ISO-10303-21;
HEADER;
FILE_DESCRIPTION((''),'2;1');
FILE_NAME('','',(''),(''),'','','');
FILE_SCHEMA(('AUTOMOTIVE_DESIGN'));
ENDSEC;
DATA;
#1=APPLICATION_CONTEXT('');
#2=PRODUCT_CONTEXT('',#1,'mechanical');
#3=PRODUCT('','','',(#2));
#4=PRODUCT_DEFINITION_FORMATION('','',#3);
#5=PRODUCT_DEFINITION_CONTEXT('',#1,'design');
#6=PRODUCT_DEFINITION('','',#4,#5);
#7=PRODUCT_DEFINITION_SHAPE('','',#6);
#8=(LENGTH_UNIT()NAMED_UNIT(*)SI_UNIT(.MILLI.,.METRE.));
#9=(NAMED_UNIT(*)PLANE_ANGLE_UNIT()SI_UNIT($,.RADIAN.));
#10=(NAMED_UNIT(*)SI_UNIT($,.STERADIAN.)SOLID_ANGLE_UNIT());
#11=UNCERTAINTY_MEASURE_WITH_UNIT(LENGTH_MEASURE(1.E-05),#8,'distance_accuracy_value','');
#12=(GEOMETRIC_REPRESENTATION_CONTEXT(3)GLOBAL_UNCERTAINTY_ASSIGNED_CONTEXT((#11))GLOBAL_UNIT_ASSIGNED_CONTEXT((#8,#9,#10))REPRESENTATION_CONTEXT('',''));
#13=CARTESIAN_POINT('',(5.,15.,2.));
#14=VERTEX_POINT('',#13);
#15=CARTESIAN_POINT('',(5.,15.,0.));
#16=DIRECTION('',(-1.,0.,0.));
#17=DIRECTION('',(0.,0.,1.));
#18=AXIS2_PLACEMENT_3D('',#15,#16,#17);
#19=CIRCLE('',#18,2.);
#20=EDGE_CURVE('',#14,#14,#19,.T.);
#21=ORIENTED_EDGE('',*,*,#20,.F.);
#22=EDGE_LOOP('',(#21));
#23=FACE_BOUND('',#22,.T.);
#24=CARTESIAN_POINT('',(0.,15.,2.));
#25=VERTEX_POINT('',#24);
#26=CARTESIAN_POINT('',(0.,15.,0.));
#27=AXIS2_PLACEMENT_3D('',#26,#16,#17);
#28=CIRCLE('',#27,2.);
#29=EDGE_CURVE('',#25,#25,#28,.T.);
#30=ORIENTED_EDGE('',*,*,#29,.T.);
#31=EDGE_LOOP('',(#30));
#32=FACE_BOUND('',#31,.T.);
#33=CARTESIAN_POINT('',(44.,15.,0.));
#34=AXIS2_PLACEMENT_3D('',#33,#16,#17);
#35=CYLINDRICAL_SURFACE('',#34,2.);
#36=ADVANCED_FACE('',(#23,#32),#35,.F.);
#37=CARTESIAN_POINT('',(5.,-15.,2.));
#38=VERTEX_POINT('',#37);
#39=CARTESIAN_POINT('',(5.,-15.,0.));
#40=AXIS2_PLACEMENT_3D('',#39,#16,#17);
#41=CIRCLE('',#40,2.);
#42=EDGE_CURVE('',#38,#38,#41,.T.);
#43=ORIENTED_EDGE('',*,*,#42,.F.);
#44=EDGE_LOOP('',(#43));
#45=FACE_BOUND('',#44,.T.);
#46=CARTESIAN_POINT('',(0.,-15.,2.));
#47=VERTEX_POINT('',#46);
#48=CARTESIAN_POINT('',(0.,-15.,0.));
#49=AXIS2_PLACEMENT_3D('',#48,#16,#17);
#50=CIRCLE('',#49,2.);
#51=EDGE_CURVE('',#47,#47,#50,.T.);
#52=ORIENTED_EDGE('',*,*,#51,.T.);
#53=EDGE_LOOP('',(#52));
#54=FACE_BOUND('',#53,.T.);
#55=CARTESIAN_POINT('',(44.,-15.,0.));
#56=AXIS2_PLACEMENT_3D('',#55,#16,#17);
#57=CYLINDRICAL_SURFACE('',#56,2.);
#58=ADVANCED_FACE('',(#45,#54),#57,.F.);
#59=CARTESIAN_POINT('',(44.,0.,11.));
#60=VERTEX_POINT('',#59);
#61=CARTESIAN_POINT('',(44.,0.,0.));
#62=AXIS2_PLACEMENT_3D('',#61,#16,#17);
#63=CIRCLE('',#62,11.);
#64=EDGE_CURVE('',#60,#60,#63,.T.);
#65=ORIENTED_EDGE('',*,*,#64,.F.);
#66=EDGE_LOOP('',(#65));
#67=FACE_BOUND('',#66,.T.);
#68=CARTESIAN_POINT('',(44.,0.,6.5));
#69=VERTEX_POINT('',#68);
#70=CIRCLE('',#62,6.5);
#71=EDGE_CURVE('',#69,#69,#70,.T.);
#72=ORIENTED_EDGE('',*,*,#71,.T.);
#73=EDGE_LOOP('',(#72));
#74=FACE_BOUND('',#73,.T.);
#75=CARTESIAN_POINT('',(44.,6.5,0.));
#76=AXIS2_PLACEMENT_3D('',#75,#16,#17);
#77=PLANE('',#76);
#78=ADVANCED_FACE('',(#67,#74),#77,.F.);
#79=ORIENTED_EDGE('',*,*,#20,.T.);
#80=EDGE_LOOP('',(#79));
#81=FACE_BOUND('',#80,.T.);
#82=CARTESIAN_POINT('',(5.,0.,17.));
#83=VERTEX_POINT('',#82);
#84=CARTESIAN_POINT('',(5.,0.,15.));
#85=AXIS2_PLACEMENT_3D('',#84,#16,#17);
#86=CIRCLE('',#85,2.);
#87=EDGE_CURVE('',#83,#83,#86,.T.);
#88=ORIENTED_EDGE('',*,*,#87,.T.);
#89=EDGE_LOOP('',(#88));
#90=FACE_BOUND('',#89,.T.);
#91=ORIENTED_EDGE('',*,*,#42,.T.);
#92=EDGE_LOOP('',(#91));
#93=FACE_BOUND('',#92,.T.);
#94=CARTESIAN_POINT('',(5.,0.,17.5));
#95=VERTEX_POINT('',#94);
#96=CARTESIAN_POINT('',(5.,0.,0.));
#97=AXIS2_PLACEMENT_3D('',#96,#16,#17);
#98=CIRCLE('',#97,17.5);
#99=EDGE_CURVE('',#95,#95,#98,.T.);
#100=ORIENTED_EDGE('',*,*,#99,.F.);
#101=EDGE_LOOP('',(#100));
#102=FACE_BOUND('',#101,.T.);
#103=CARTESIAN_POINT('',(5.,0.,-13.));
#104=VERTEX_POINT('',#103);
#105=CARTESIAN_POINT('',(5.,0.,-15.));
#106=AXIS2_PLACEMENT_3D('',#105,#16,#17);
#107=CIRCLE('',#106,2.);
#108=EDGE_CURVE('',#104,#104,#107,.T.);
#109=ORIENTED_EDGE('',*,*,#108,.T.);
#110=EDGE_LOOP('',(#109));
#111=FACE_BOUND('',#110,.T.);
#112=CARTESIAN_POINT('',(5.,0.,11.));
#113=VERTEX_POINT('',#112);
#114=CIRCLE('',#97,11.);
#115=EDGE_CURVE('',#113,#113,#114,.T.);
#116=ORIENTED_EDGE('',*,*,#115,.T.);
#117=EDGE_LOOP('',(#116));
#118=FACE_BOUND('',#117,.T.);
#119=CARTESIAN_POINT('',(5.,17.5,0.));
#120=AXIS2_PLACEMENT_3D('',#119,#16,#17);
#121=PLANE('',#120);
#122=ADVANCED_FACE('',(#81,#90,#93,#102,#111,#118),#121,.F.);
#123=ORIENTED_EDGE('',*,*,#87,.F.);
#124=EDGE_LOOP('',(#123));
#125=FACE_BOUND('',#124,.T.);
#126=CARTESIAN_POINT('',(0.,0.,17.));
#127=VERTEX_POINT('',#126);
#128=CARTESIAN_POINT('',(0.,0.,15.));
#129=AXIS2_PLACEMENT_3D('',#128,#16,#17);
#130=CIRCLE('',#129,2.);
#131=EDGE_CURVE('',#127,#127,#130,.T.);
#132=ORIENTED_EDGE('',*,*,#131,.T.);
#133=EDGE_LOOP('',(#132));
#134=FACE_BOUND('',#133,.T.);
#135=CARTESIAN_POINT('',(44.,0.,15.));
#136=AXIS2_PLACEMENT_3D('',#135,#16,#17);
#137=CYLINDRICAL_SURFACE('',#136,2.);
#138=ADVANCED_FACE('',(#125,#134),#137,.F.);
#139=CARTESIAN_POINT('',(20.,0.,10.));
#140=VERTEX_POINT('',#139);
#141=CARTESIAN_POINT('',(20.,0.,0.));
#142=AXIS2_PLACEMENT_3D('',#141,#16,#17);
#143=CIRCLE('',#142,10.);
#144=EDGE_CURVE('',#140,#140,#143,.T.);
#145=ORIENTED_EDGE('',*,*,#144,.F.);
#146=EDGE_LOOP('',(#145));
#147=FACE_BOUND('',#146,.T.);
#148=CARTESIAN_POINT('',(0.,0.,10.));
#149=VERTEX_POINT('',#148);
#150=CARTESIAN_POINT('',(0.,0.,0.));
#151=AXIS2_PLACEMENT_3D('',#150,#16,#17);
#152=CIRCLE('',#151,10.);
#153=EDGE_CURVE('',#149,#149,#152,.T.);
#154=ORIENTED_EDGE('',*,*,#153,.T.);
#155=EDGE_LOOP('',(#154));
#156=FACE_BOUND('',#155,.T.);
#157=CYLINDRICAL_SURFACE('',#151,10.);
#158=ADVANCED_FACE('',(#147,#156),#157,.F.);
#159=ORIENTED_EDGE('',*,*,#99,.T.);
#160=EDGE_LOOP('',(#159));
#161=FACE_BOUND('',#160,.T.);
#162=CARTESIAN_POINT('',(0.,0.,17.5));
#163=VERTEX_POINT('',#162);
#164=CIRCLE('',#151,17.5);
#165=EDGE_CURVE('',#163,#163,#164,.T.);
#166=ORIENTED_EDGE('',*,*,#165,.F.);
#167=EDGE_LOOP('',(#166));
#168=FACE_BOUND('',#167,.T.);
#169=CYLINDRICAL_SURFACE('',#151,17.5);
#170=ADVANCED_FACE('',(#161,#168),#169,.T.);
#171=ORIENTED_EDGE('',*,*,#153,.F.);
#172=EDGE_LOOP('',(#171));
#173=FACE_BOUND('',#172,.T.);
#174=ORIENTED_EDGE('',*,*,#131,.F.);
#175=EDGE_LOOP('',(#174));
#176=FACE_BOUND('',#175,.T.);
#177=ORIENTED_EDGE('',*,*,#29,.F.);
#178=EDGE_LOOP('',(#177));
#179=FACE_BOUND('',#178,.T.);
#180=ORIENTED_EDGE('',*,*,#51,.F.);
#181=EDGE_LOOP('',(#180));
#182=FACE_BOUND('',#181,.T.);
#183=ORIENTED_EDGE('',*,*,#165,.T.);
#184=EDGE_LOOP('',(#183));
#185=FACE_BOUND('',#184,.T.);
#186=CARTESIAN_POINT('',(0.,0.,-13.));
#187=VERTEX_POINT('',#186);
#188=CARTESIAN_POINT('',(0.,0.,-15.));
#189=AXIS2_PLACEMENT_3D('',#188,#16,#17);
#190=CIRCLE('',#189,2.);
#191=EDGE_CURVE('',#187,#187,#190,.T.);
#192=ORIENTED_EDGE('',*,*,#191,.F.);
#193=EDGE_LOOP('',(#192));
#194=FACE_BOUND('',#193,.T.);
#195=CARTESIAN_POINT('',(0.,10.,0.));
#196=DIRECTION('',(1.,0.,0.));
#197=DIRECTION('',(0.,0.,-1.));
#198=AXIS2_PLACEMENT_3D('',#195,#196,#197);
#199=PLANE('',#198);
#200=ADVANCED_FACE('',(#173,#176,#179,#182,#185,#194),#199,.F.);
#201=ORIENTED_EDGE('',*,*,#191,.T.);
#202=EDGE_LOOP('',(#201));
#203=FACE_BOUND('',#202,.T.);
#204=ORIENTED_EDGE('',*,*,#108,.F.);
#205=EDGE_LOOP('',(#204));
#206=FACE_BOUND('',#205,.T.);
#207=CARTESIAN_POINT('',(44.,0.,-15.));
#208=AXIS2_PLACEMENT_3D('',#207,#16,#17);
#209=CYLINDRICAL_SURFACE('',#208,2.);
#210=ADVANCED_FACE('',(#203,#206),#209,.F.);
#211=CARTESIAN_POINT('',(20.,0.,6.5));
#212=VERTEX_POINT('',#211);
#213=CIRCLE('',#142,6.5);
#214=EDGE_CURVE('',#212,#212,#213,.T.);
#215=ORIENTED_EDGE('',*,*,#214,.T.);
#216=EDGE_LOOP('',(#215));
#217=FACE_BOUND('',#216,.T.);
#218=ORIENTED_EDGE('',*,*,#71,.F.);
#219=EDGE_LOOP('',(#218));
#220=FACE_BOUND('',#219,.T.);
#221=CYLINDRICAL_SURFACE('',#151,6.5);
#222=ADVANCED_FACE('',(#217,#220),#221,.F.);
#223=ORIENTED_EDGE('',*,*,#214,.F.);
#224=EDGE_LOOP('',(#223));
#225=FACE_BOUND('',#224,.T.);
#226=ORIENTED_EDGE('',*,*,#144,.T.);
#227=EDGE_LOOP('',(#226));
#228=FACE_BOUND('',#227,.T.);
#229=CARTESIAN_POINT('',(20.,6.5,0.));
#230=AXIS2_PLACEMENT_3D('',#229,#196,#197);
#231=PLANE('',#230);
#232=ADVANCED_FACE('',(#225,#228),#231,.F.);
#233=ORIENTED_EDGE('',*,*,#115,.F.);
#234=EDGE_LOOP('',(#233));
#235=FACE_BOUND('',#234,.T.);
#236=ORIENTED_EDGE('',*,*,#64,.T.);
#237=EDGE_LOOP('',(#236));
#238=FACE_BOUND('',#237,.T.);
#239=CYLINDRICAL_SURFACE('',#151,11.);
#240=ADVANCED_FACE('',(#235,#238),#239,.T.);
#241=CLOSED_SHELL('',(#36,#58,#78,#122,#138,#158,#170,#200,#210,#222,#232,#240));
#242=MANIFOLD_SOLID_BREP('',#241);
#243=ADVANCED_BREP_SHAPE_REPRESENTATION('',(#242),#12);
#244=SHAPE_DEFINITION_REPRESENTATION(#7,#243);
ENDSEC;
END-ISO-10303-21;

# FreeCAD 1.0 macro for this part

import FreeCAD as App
import Part
import Sketcher

V = App.Vector

doc = App.newDocument("Part")
body = doc.addObject("PartDesign::Body", "Body")

sketch1 = body.newObject("Sketcher::SketchObject", "Sketch")
sketch1.AttachmentSupport = (doc.getObject("XY_Plane"), [""])
sketch1.MapMode = "FlatFace"
sketch1.addGeometry([
    Part.LineSegment(V(0, 17.5, 0), V(0, 10, 0)),
    Part.LineSegment(V(0, 10, 0), V(20, 10, 0)),
    Part.LineSegment(V(20, 10, 0), V(20, 6.5, 0)),
    Part.LineSegment(V(20, 6.5, 0), V(44, 6.5, 0)),
    Part.LineSegment(V(44, 6.5, 0), V(44, 11, 0)),
    Part.LineSegment(V(44, 11, 0), V(5, 11, 0)),
    Part.LineSegment(V(5, 11, 0), V(5, 17.5, 0)),
    Part.LineSegment(V(5, 17.5, 0), V(0, 17.5, 0)),
], False)
sketch1.addConstraint([
    Sketcher.Constraint("Coincident", 0, 2, 1, 1),
    Sketcher.Constraint("Coincident", 1, 2, 2, 1),
    Sketcher.Constraint("Coincident", 2, 2, 3, 1),
    Sketcher.Constraint("Coincident", 3, 2, 4, 1),
    Sketcher.Constraint("Coincident", 4, 2, 5, 1),
    Sketcher.Constraint("Coincident", 5, 2, 6, 1),
    Sketcher.Constraint("Coincident", 6, 2, 7, 1),
    Sketcher.Constraint("Coincident", 7, 2, 0, 1),
    Sketcher.Constraint("Vertical", 0),
    Sketcher.Constraint("Horizontal", 1),
    Sketcher.Constraint("Vertical", 2),
    Sketcher.Constraint("Horizontal", 3),
    Sketcher.Constraint("Vertical", 4),
    Sketcher.Constraint("Horizontal", 5),
    Sketcher.Constraint("Vertical", 6),
    Sketcher.Constraint("Horizontal", 7),
    Sketcher.Constraint("PointOnObject", 0, 2, -2),
    Sketcher.Constraint("DistanceX", 1, 1, 1, 2, 20.0),
    Sketcher.Constraint("DistanceX", 3, 1, 3, 2, 24.0),
    Sketcher.Constraint("DistanceX", 5, 2, 5, 1, 39.0),
    Sketcher.Constraint("DistanceY", 0, 2, 0, 1, 7.5),
    Sketcher.Constraint("DistanceY", 2, 2, 2, 1, 3.5),
    Sketcher.Constraint("DistanceY", 4, 1, 4, 2, 4.5),
    Sketcher.Constraint("DistanceY", -1, 1, 0, 2, 10.0),
])
revolution = body.newObject("PartDesign::Revolution", "Revolution")
revolution.Profile = sketch1
revolution.ReferenceAxis = (sketch1, ["H_Axis"])
revolution.Angle = 360

sketch2 = body.newObject("Sketcher::SketchObject", "Sketch001")
sketch2.AttachmentSupport = (doc.getObject("YZ_Plane"), [""])
sketch2.MapMode = "FlatFace"
sketch2.addGeometry([
    Part.Circle(V(15, 0, 0), V(0, 0, 1), 2),
    Part.Circle(V(0, 15, 0), V(0, 0, 1), 2),
    Part.Circle(V(-15, 0, 0), V(0, 0, 1), 2),
    Part.Circle(V(0, -15, 0), V(0, 0, 1), 2),
], False)
sketch2.addConstraint([
    Sketcher.Constraint("Equal", 0, 1),
    Sketcher.Constraint("Equal", 1, 2),
    Sketcher.Constraint("Equal", 2, 3),
    Sketcher.Constraint("Symmetric", 0, 3, 2, 3, -1, 1),
    Sketcher.Constraint("Symmetric", 1, 3, 3, 3, -1, 1),
    Sketcher.Constraint("PointOnObject", 0, 3, -1),
    Sketcher.Constraint("PointOnObject", 1, 3, -2),
    Sketcher.Constraint("Diameter", 0, 4.0),
    Sketcher.Constraint("DistanceX", -1, 1, 0, 3, 15.0),
    Sketcher.Constraint("DistanceY", -1, 1, 1, 3, 15.0),
])
pocket1 = body.newObject("PartDesign::Pocket", "Pocket")
pocket1.Profile = sketch2
pocket1.Type = "ThroughAll"
pocket1.Reversed = True

doc.recompute()
